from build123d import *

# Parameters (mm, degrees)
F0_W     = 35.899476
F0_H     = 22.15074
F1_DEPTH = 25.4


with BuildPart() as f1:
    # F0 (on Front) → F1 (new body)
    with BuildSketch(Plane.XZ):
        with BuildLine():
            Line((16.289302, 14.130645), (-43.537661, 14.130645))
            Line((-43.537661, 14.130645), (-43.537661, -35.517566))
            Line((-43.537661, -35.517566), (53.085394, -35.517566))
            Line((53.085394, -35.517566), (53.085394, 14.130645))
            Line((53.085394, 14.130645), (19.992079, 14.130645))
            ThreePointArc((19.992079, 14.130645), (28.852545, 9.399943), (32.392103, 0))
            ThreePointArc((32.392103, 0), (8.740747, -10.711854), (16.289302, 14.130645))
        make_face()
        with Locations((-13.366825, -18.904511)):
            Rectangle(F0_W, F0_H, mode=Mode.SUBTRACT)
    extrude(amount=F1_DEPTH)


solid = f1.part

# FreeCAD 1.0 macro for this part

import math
import FreeCAD as App
import Part
import Sketcher
Q = App.Units.Quantity


def add_polygon(sketch, points):
    """Adds a closed chain of lines whose ends are joined by coincident constraints."""
    first, n = sketch.GeometryCount, len(points)
    for a, b in zip(points, points[1:] + points[:1]):
        sketch.addGeometry(Part.LineSegment(App.Vector(*a, 0), App.Vector(*b, 0)), False)
    for i in range(n):
        sketch.addConstraint(Sketcher.Constraint("Coincident", first + i, 2, first + (i + 1) % n, 1))

doc = App.newDocument("Part")
body = doc.addObject("PartDesign::Body", "Body")

# Sketch on XZ plane
sketch1 = doc.addObject("Sketcher::SketchObject", "Sketch")
body.addObject(sketch1)
sketch1.AttachmentSupport = (doc.XZ_Plane, [""])
sketch1.MapMode = "FlatFace"
sketch1.addGeometry(Part.LineSegment(App.Vector(16, 14, 0), App.Vector(-44, 14, 0)), False)  # 0
sketch1.addGeometry(Part.LineSegment(App.Vector(-44, 14, 0), App.Vector(-44, -36, 0)), False)  # 1
sketch1.addGeometry(Part.LineSegment(App.Vector(-44, -36, 0), App.Vector(53, -36, 0)), False)  # 2
sketch1.addGeometry(Part.LineSegment(App.Vector(53, -36, 0), App.Vector(53, 14, 0)), False)  # 3
sketch1.addGeometry(Part.LineSegment(App.Vector(53, 14, 0), App.Vector(20, 14, 0)), False)  # 4
sketch1.addGeometry(Part.ArcOfCircle(Part.Circle(App.Vector(18, 0, 0), App.Vector(0, 0, 1), 14), math.radians(0), math.radians(83)), False)  # 5
sketch1.addGeometry(Part.ArcOfCircle(Part.Circle(App.Vector(18, 0, 0), App.Vector(0, 0, 1), 14), math.radians(97), math.radians(360)), False)  # 6
add_polygon(sketch1, [(5, -30), (-31, -30), (-31, -8), (5, -8)])  # lines 7-10
sketch1.addConstraint(Sketcher.Constraint("Coincident", 0, 2, 1, 1))
sketch1.addConstraint(Sketcher.Constraint("Coincident", 1, 2, 2, 1))
sketch1.addConstraint(Sketcher.Constraint("Coincident", 2, 2, 3, 1))
sketch1.addConstraint(Sketcher.Constraint("Coincident", 3, 2, 4, 1))
sketch1.addConstraint(Sketcher.Constraint("Coincident", 4, 2, 5, 2))
sketch1.addConstraint(Sketcher.Constraint("Tangent", 5, 1, 6, 2))
sketch1.addConstraint(Sketcher.Constraint("Coincident", 6, 1, 0, 1))
sketch1.addConstraint(Sketcher.Constraint("Horizontal", 0))
sketch1.addConstraint(Sketcher.Constraint("Vertical", 1))
sketch1.addConstraint(Sketcher.Constraint("Horizontal", 2))
sketch1.addConstraint(Sketcher.Constraint("Vertical", 3))
sketch1.addConstraint(Sketcher.Constraint("Horizontal", 4))
sketch1.addConstraint(Sketcher.Constraint("Horizontal", 7))
sketch1.addConstraint(Sketcher.Constraint("Vertical", 8))
sketch1.addConstraint(Sketcher.Constraint("Horizontal", 9))
sketch1.addConstraint(Sketcher.Constraint("Vertical", 10))
sketch1.addConstraint(Sketcher.Constraint("Equal", 5, 6))
sketch1.addConstraint(Sketcher.Constraint("PointOnObject", 5, 3, -1))
sketch1.addConstraint(Sketcher.Constraint("PointOnObject", 5, 1, -1))
sketch1.addConstraint(Sketcher.Constraint("Horizontal", 0, 2, 3, 2))
sketch1.addConstraint(Sketcher.Constraint("Radius", 5, Q("14.251413 mm")))
sketch1.addConstraint(Sketcher.Constraint("DistanceY", 1, 2, 1, 1, Q("49.648211 mm")))
sketch1.addConstraint(Sketcher.Constraint("DistanceY", 8, 1, 8, 2, Q("22.15074 mm")))
sketch1.addConstraint(Sketcher.Constraint("DistanceX", 6, 1, 5, 1, Q("16.102801 mm")))
sketch1.addConstraint(Sketcher.Constraint("DistanceX", 1, 2, 7, 2, Q("12.221098 mm")))
sketch1.addConstraint(Sketcher.Constraint("DistanceX", 0, 2, 0, 1, Q("59.826963 mm")))
sketch1.addConstraint(Sketcher.Constraint("DistanceX", 2, 1, 2, 2, Q("96.623055 mm")))
sketch1.addConstraint(Sketcher.Constraint("DistanceX", 7, 2, 7, 1, Q("35.899476 mm")))
sketch1.addConstraint(Sketcher.Constraint("DistanceX", -1, 1, 5, 3, Q("18.14069 mm")))
sketch1.addConstraint(Sketcher.Constraint("DistanceY", 7, 2, -1, 1, Q("29.979881 mm")))
pad1 = doc.addObject("PartDesign::Pad", "Pad")
body.addObject(pad1)
pad1.Profile = sketch1
pad1.Length = Q("1 in")

doc.recompute()
